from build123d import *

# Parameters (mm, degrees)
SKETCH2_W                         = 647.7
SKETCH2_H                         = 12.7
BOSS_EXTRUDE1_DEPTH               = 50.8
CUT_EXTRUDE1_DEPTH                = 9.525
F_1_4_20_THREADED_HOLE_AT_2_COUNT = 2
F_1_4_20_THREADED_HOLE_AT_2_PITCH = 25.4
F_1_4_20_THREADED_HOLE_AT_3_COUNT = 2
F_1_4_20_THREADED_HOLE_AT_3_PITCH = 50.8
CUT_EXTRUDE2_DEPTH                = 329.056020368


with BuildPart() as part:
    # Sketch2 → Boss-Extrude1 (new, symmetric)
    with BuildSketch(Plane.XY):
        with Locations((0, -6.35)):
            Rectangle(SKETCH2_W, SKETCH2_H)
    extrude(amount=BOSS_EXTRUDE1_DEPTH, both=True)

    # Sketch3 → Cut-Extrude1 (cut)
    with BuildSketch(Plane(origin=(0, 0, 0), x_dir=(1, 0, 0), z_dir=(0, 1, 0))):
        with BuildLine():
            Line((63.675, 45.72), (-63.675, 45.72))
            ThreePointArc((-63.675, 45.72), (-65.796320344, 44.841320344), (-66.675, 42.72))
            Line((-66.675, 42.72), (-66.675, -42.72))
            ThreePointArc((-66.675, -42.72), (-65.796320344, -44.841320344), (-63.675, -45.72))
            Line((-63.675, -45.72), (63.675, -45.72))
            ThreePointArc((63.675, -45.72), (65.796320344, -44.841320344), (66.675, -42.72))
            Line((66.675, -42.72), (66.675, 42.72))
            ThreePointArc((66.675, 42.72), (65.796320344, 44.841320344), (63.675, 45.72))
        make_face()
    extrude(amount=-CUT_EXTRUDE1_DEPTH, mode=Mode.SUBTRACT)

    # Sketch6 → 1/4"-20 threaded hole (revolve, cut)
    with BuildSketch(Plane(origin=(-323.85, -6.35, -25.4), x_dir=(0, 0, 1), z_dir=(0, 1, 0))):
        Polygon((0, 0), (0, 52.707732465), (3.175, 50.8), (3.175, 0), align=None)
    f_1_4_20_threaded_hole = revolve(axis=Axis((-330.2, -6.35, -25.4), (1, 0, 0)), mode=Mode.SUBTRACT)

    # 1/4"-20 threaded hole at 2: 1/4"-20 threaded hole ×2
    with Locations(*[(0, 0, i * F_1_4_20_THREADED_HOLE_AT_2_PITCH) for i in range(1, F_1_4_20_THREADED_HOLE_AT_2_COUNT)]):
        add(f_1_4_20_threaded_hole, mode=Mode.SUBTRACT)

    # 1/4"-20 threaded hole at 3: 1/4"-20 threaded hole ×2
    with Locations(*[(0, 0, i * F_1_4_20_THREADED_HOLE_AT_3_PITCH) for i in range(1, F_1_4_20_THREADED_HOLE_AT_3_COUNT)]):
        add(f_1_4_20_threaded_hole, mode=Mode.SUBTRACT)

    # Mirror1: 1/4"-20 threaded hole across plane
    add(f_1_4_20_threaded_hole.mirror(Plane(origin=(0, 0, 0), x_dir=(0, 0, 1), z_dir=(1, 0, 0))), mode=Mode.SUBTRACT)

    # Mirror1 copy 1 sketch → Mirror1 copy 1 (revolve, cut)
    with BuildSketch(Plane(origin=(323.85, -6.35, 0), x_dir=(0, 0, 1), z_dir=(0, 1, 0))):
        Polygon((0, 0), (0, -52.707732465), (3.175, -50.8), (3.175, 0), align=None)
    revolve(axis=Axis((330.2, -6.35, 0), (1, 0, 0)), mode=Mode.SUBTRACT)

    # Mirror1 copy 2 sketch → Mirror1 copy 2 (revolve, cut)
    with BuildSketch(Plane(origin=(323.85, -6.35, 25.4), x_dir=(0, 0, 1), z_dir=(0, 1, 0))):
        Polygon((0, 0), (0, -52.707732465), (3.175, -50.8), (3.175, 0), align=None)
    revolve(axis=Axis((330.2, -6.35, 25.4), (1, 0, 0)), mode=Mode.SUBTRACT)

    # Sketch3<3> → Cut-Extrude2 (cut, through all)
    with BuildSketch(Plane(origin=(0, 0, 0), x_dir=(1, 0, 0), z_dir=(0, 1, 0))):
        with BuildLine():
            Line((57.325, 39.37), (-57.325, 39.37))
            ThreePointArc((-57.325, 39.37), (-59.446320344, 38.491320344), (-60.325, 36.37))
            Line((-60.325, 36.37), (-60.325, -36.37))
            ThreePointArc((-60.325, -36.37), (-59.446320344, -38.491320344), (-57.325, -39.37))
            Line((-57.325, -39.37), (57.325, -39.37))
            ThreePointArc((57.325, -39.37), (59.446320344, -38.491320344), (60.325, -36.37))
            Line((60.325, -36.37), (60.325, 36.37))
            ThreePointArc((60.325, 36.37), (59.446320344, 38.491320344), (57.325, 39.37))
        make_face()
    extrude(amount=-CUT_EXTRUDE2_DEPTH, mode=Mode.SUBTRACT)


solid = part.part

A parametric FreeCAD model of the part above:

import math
import FreeCAD as App
import Part
import Sketcher

V = App.Vector
Q = App.Units.Quantity


def add_polygon(sketch, points):
    """Adds a closed chain of lines whose ends are joined by coincident constraints."""
    first, n = sketch.GeometryCount, len(points)
    for a, b in zip(points, points[1:] + points[:1]):
        sketch.addGeometry(Part.LineSegment(App.Vector(*a, 0), App.Vector(*b, 0)), False)
    for i in range(n):
        sketch.addConstraint(Sketcher.Constraint("Coincident", first + i, 2, first + (i + 1) % n, 1))

doc = App.newDocument("Part")
params = doc.addObject("Spreadsheet::Sheet", "Params")
for row, (alias, value) in enumerate([
    ("sketch1_width", "25.5 in"),
    ("sketch1_height", "0.5 in"),
    ("pad1_length", "4 in"),
    ("pocket1_length", "0.375 in"),
    ("sketch3_width", "2 in"),
    ("sketch3_height", "0.125 in"),
    ("groove_angle", "360 deg"),
    ("linearpattern_pitch", "1 in"),
    ("linearpattern2_pitch", "2 in"),
    ("sketch4_width", "2 in"),
    ("sketch4_height", "0.125 in"),
    ("groove2_angle", "360 deg"),
    ("sketch5_width", "2 in"),
    ("sketch5_height", "0.125 in"),
    ("groove3_angle", "360 deg"),
], start=1):
    params.set(f"A{row}", alias)
    params.set(f"B{row}", "=" + value)
    params.setAlias(f"B{row}", alias)

body = doc.addObject("PartDesign::Body", "Body")

sketch1 = doc.addObject("Sketcher::SketchObject", "Sketch")
body.addObject(sketch1)
sketch1.AttachmentSupport = (doc.XY_Plane, [""])
sketch1.MapMode = "FlatFace"
add_polygon(sketch1, [(-324, 0), (-324, -13), (324, -13), (324, 0)])
sketch1.addConstraint([
    Sketcher.Constraint("Vertical", 0),
    Sketcher.Constraint("Horizontal", 1),
    Sketcher.Constraint("Vertical", 2),
    Sketcher.Constraint("Horizontal", 3),
    Sketcher.Constraint("Symmetric", 2, 2, 3, 2, -1, 1),
    Sketcher.Constraint("DistanceX", 1, 1, 1, 2, Q("25.5 in")),
    Sketcher.Constraint("DistanceY", 0, 2, 0, 1, Q("0.5 in")),
])
sketch1.setExpression("Constraints[9]", "Params.sketch1_width")
sketch1.setExpression("Constraints[10]", "Params.sketch1_height")
pad1 = doc.addObject("PartDesign::Pad", "Pad")
body.addObject(pad1)
pad1.Profile = sketch1
pad1.setExpression("Length", "Params.pad1_length")
pad1.Midplane = True

sketch2 = doc.addObject("Sketcher::SketchObject", "Sketch001")
body.addObject(sketch2)
sketch2.AttachmentSupport = (doc.XZ_Plane, [""])
sketch2.MapMode = "FlatFace"
sketch2.addGeometry([
    Part.LineSegment(V(63.7, -45.7, 0), V(-63.7, -45.7, 0)),
    Part.ArcOfCircle(Part.Circle(V(-63.7, -42.7, 0), V(0, 0, 1), 3), math.radians(180), math.radians(270)),
    Part.LineSegment(V(-66.7, -42.7, 0), V(-66.7, 42.7, 0)),
    Part.ArcOfCircle(Part.Circle(V(-63.7, 42.7, 0), V(0, 0, 1), 3), math.radians(90), math.radians(180)),
    Part.LineSegment(V(-63.7, 45.7, 0), V(63.7, 45.7, 0)),
    Part.ArcOfCircle(Part.Circle(V(63.7, 42.7, 0), V(0, 0, 1), 3), math.radians(0), math.radians(90)),
    Part.LineSegment(V(66.7, 42.7, 0), V(66.7, -42.7, 0)),
    Part.ArcOfCircle(Part.Circle(V(63.7, -42.7, 0), V(0, 0, 1), 3), math.radians(-90), math.radians(0)),
], False)
sketch2.addConstraint([
    Sketcher.Constraint("Tangent", 0, 2, 1, 2),
    Sketcher.Constraint("Tangent", 1, 1, 2, 1),
    Sketcher.Constraint("Tangent", 2, 2, 3, 2),
    Sketcher.Constraint("Tangent", 3, 1, 4, 1),
    Sketcher.Constraint("Tangent", 4, 2, 5, 2),
    Sketcher.Constraint("Tangent", 5, 1, 6, 1),
    Sketcher.Constraint("Tangent", 6, 2, 7, 2),
    Sketcher.Constraint("Tangent", 7, 1, 0, 1),
    Sketcher.Constraint("Horizontal", 0),
    Sketcher.Constraint("Vertical", 2),
    Sketcher.Constraint("Horizontal", 4),
    Sketcher.Constraint("Vertical", 6),
    Sketcher.Constraint("Equal", 1, 3),
    Sketcher.Constraint("Equal", 3, 5),
    Sketcher.Constraint("Equal", 5, 7),
    Sketcher.Constraint("Symmetric", 1, 3, 5, 3, -1, 1),
    Sketcher.Constraint("DistanceY", 0, 2, -1, 1, Q("1.8 in")),
    Sketcher.Constraint("Radius", 1, 3.0),
    Sketcher.Constraint("DistanceX", 1, 1, -1, 1, Q("2.625 in")),
])
pocket1 = doc.addObject("PartDesign::Pocket", "Pocket")
body.addObject(pocket1)
pocket1.Profile = sketch2
pocket1.setExpression("Length", "Params.pocket1_length")
pocket1.Reversed = True

sketch3 = doc.addObject("Sketcher::SketchObject", "Sketch002")
body.addObject(sketch3)
sketch3.AttachmentSupport = (doc.XZ_Plane, [""])
sketch3.MapMode = "FlatFace"
sketch3.AttachmentOffset = App.Placement(V(0, 0, 0.25 * 25.4), App.Rotation())
add_polygon(sketch3, [(-271.1, -25.4), (-323.9, -25.4), (-323.9, -22.2), (-273.1, -22.2)])
sketch3.addGeometry(Part.LineSegment(V(-323.9, -25.4, 0), V(-271.1, -25.4, 0)), True)
sketch3.addConstraint([
    Sketcher.Constraint("Horizontal", 0),
    Sketcher.Constraint("Vertical", 1),
    Sketcher.Constraint("Horizontal", 2),
    Sketcher.Constraint("Horizontal", 4),
    Sketcher.Constraint("Coincident", 4, 1, 0, 2),
    Sketcher.Constraint("Equal", 0, 4),
    Sketcher.Constraint("DistanceX", 2, 1, 2, 2, Q("2 in")),
    Sketcher.Constraint("DistanceY", 0, 2, -1, 1, Q("1 in")),
    Sketcher.Constraint("Angle", 3, Q("-59 deg")),
    Sketcher.Constraint("DistanceY", 1, 1, 1, 2, Q("0.125 in")),
    Sketcher.Constraint("DistanceX", 0, 2, -1, 1, Q("12.75 in")),
])
sketch3.setExpression("Constraints[10]", "Params.sketch3_width")
sketch3.setExpression("Constraints[13]", "Params.sketch3_height")
groove = doc.addObject("PartDesign::Groove", "Groove")
body.addObject(groove)
groove.Profile = sketch3
groove.ReferenceAxis = (sketch3, ["Axis0"])
groove.setExpression("Angle", "Params.groove_angle")
doc.recompute()

linearpattern = doc.addObject("PartDesign::LinearPattern", "LinearPattern")
body.addObject(linearpattern)
linearpattern.Originals = [groove]
linearpattern.Direction = (doc.Z_Axis, [""])
linearpattern.Mode = "offset"
linearpattern.setExpression("Offset", "Params.linearpattern_pitch")
linearpattern.Occurrences = 2
body.Tip = linearpattern
doc.recompute()

linearpattern2 = doc.addObject("PartDesign::LinearPattern", "LinearPattern001")
body.addObject(linearpattern2)
linearpattern2.Originals = [groove]
linearpattern2.Direction = (doc.Z_Axis, [""])
linearpattern2.Mode = "offset"
linearpattern2.setExpression("Offset", "Params.linearpattern2_pitch")
linearpattern2.Occurrences = 2
body.Tip = linearpattern2
doc.recompute()

mirrored = doc.addObject("PartDesign::Mirrored", "Mirrored")
body.addObject(mirrored)
mirrored.Originals = [groove]
mirrored.MirrorPlane = (doc.YZ_Plane, [""])
body.Tip = mirrored

sketch4 = doc.addObject("Sketcher::SketchObject", "Sketch003")
body.addObject(sketch4)
sketch4.AttachmentSupport = (doc.XZ_Plane, [""])
sketch4.MapMode = "FlatFace"
sketch4.AttachmentOffset = App.Placement(V(0, 0, 0.25 * 25.4), App.Rotation())
add_polygon(sketch4, [(323.9, 0), (271.1, 0), (273.1, 3.2), (323.9, 3.2)])
sketch4.addConstraint([
    Sketcher.Constraint("Horizontal", 0),
    Sketcher.Constraint("Horizontal", 2),
    Sketcher.Constraint("Vertical", 3),
    Sketcher.Constraint("PointOnObject", 0, 2, -1),
    Sketcher.Constraint("DistanceX", 2, 1, 2, 2, Q("2 in")),
    Sketcher.Constraint("Angle", 1, Q("59 deg")),
    Sketcher.Constraint("DistanceY", 3, 2, 3, 1, Q("0.125 in")),
    Sketcher.Constraint("DistanceX", -1, 1, 1, 2, Q("10.75 in")),
])
sketch4.setExpression("Constraints[8]", "Params.sketch4_width")
sketch4.setExpression("Constraints[10]", "Params.sketch4_height")
groove2 = doc.addObject("PartDesign::Groove", "Groove001")
body.addObject(groove2)
groove2.Profile = sketch4
groove2.ReferenceAxis = (sketch4, ["H_Axis"])
groove2.setExpression("Angle", "Params.groove2_angle")

sketch5 = doc.addObject("Sketcher::SketchObject", "Sketch004")
body.addObject(sketch5)
sketch5.AttachmentSupport = (doc.XZ_Plane, [""])
sketch5.MapMode = "FlatFace"
sketch5.AttachmentOffset = App.Placement(V(0, 0, 0.25 * 25.4), App.Rotation())
add_polygon(sketch5, [(323.9, 25.4), (271.1, 25.4), (273.1, 28.6), (323.9, 28.6)])
sketch5.addGeometry(Part.LineSegment(V(271.1, 25.4, 0), V(323.9, 25.4, 0)), True)
sketch5.addConstraint([
    Sketcher.Constraint("Horizontal", 0),
    Sketcher.Constraint("Horizontal", 2),
    Sketcher.Constraint("Vertical", 3),
    Sketcher.Constraint("Horizontal", 4),
    Sketcher.Constraint("Coincident", 4, 1, 0, 2),
    Sketcher.Constraint("Vertical", 2, 2, 4, 2),
    Sketcher.Constraint("DistanceX", 2, 1, 2, 2, Q("2 in")),
    Sketcher.Constraint("DistanceY", -1, 1, 0, 2, Q("1 in")),
    Sketcher.Constraint("Angle", 1, Q("59 deg")),
    Sketcher.Constraint("DistanceY", 3, 2, 3, 1, Q("0.125 in")),
    Sketcher.Constraint("DistanceX", -1, 1, 1, 2, Q("10.75 in")),
])
sketch5.setExpression("Constraints[10]", "Params.sketch5_width")
sketch5.setExpression("Constraints[13]", "Params.sketch5_height")
groove3 = doc.addObject("PartDesign::Groove", "Groove002")
body.addObject(groove3)
groove3.Profile = sketch5
groove3.ReferenceAxis = (sketch5, ["Axis0"])
groove3.setExpression("Angle", "Params.groove3_angle")

sketch6 = doc.addObject("Sketcher::SketchObject", "Sketch005")
body.addObject(sketch6)
sketch6.AttachmentSupport = (doc.XZ_Plane, [""])
sketch6.MapMode = "FlatFace"
sketch6.addGeometry([
    Part.LineSegment(V(57.3, -39.4, 0), V(-57.3, -39.4, 0)),
    Part.ArcOfCircle(Part.Circle(V(-57.3, -36.4, 0), V(0, 0, 1), 3), math.radians(180), math.radians(270)),
    Part.LineSegment(V(-60.3, -36.4, 0), V(-60.3, 36.4, 0)),
    Part.ArcOfCircle(Part.Circle(V(-57.3, 36.4, 0), V(0, 0, 1), 3), math.radians(90), math.radians(180)),
    Part.LineSegment(V(-57.3, 39.4, 0), V(57.3, 39.4, 0)),
    Part.ArcOfCircle(Part.Circle(V(57.3, 36.4, 0), V(0, 0, 1), 3), math.radians(0), math.radians(90)),
    Part.LineSegment(V(60.3, 36.4, 0), V(60.3, -36.4, 0)),
    Part.ArcOfCircle(Part.Circle(V(57.3, -36.4, 0), V(0, 0, 1), 3), math.radians(-90), math.radians(0)),
], False)
sketch6.addConstraint([
    Sketcher.Constraint("Tangent", 0, 2, 1, 2),
    Sketcher.Constraint("Tangent", 1, 1, 2, 1),
    Sketcher.Constraint("Tangent", 2, 2, 3, 2),
    Sketcher.Constraint("Tangent", 3, 1, 4, 1),
    Sketcher.Constraint("Tangent", 4, 2, 5, 2),
    Sketcher.Constraint("Tangent", 5, 1, 6, 1),
    Sketcher.Constraint("Tangent", 6, 2, 7, 2),
    Sketcher.Constraint("Tangent", 7, 1, 0, 1),
    Sketcher.Constraint("Horizontal", 0),
    Sketcher.Constraint("Vertical", 2),
    Sketcher.Constraint("Horizontal", 4),
    Sketcher.Constraint("Vertical", 6),
    Sketcher.Constraint("Equal", 1, 3),
    Sketcher.Constraint("Equal", 3, 5),
    Sketcher.Constraint("Equal", 5, 7),
    Sketcher.Constraint("Symmetric", 1, 3, 5, 3, -1, 1),
    Sketcher.Constraint("DistanceY", 0, 2, 3, 1, Q("3.1 in")),
    Sketcher.Constraint("Radius", 1, 3.0),
    Sketcher.Constraint("DistanceX", 1, 1, -1, 1, Q("2.375 in")),
])
pocket2 = doc.addObject("PartDesign::Pocket", "Pocket001")
body.addObject(pocket2)
pocket2.Profile = sketch6
pocket2.Type = "ThroughAll"
pocket2.Reversed = True

doc.recompute()
